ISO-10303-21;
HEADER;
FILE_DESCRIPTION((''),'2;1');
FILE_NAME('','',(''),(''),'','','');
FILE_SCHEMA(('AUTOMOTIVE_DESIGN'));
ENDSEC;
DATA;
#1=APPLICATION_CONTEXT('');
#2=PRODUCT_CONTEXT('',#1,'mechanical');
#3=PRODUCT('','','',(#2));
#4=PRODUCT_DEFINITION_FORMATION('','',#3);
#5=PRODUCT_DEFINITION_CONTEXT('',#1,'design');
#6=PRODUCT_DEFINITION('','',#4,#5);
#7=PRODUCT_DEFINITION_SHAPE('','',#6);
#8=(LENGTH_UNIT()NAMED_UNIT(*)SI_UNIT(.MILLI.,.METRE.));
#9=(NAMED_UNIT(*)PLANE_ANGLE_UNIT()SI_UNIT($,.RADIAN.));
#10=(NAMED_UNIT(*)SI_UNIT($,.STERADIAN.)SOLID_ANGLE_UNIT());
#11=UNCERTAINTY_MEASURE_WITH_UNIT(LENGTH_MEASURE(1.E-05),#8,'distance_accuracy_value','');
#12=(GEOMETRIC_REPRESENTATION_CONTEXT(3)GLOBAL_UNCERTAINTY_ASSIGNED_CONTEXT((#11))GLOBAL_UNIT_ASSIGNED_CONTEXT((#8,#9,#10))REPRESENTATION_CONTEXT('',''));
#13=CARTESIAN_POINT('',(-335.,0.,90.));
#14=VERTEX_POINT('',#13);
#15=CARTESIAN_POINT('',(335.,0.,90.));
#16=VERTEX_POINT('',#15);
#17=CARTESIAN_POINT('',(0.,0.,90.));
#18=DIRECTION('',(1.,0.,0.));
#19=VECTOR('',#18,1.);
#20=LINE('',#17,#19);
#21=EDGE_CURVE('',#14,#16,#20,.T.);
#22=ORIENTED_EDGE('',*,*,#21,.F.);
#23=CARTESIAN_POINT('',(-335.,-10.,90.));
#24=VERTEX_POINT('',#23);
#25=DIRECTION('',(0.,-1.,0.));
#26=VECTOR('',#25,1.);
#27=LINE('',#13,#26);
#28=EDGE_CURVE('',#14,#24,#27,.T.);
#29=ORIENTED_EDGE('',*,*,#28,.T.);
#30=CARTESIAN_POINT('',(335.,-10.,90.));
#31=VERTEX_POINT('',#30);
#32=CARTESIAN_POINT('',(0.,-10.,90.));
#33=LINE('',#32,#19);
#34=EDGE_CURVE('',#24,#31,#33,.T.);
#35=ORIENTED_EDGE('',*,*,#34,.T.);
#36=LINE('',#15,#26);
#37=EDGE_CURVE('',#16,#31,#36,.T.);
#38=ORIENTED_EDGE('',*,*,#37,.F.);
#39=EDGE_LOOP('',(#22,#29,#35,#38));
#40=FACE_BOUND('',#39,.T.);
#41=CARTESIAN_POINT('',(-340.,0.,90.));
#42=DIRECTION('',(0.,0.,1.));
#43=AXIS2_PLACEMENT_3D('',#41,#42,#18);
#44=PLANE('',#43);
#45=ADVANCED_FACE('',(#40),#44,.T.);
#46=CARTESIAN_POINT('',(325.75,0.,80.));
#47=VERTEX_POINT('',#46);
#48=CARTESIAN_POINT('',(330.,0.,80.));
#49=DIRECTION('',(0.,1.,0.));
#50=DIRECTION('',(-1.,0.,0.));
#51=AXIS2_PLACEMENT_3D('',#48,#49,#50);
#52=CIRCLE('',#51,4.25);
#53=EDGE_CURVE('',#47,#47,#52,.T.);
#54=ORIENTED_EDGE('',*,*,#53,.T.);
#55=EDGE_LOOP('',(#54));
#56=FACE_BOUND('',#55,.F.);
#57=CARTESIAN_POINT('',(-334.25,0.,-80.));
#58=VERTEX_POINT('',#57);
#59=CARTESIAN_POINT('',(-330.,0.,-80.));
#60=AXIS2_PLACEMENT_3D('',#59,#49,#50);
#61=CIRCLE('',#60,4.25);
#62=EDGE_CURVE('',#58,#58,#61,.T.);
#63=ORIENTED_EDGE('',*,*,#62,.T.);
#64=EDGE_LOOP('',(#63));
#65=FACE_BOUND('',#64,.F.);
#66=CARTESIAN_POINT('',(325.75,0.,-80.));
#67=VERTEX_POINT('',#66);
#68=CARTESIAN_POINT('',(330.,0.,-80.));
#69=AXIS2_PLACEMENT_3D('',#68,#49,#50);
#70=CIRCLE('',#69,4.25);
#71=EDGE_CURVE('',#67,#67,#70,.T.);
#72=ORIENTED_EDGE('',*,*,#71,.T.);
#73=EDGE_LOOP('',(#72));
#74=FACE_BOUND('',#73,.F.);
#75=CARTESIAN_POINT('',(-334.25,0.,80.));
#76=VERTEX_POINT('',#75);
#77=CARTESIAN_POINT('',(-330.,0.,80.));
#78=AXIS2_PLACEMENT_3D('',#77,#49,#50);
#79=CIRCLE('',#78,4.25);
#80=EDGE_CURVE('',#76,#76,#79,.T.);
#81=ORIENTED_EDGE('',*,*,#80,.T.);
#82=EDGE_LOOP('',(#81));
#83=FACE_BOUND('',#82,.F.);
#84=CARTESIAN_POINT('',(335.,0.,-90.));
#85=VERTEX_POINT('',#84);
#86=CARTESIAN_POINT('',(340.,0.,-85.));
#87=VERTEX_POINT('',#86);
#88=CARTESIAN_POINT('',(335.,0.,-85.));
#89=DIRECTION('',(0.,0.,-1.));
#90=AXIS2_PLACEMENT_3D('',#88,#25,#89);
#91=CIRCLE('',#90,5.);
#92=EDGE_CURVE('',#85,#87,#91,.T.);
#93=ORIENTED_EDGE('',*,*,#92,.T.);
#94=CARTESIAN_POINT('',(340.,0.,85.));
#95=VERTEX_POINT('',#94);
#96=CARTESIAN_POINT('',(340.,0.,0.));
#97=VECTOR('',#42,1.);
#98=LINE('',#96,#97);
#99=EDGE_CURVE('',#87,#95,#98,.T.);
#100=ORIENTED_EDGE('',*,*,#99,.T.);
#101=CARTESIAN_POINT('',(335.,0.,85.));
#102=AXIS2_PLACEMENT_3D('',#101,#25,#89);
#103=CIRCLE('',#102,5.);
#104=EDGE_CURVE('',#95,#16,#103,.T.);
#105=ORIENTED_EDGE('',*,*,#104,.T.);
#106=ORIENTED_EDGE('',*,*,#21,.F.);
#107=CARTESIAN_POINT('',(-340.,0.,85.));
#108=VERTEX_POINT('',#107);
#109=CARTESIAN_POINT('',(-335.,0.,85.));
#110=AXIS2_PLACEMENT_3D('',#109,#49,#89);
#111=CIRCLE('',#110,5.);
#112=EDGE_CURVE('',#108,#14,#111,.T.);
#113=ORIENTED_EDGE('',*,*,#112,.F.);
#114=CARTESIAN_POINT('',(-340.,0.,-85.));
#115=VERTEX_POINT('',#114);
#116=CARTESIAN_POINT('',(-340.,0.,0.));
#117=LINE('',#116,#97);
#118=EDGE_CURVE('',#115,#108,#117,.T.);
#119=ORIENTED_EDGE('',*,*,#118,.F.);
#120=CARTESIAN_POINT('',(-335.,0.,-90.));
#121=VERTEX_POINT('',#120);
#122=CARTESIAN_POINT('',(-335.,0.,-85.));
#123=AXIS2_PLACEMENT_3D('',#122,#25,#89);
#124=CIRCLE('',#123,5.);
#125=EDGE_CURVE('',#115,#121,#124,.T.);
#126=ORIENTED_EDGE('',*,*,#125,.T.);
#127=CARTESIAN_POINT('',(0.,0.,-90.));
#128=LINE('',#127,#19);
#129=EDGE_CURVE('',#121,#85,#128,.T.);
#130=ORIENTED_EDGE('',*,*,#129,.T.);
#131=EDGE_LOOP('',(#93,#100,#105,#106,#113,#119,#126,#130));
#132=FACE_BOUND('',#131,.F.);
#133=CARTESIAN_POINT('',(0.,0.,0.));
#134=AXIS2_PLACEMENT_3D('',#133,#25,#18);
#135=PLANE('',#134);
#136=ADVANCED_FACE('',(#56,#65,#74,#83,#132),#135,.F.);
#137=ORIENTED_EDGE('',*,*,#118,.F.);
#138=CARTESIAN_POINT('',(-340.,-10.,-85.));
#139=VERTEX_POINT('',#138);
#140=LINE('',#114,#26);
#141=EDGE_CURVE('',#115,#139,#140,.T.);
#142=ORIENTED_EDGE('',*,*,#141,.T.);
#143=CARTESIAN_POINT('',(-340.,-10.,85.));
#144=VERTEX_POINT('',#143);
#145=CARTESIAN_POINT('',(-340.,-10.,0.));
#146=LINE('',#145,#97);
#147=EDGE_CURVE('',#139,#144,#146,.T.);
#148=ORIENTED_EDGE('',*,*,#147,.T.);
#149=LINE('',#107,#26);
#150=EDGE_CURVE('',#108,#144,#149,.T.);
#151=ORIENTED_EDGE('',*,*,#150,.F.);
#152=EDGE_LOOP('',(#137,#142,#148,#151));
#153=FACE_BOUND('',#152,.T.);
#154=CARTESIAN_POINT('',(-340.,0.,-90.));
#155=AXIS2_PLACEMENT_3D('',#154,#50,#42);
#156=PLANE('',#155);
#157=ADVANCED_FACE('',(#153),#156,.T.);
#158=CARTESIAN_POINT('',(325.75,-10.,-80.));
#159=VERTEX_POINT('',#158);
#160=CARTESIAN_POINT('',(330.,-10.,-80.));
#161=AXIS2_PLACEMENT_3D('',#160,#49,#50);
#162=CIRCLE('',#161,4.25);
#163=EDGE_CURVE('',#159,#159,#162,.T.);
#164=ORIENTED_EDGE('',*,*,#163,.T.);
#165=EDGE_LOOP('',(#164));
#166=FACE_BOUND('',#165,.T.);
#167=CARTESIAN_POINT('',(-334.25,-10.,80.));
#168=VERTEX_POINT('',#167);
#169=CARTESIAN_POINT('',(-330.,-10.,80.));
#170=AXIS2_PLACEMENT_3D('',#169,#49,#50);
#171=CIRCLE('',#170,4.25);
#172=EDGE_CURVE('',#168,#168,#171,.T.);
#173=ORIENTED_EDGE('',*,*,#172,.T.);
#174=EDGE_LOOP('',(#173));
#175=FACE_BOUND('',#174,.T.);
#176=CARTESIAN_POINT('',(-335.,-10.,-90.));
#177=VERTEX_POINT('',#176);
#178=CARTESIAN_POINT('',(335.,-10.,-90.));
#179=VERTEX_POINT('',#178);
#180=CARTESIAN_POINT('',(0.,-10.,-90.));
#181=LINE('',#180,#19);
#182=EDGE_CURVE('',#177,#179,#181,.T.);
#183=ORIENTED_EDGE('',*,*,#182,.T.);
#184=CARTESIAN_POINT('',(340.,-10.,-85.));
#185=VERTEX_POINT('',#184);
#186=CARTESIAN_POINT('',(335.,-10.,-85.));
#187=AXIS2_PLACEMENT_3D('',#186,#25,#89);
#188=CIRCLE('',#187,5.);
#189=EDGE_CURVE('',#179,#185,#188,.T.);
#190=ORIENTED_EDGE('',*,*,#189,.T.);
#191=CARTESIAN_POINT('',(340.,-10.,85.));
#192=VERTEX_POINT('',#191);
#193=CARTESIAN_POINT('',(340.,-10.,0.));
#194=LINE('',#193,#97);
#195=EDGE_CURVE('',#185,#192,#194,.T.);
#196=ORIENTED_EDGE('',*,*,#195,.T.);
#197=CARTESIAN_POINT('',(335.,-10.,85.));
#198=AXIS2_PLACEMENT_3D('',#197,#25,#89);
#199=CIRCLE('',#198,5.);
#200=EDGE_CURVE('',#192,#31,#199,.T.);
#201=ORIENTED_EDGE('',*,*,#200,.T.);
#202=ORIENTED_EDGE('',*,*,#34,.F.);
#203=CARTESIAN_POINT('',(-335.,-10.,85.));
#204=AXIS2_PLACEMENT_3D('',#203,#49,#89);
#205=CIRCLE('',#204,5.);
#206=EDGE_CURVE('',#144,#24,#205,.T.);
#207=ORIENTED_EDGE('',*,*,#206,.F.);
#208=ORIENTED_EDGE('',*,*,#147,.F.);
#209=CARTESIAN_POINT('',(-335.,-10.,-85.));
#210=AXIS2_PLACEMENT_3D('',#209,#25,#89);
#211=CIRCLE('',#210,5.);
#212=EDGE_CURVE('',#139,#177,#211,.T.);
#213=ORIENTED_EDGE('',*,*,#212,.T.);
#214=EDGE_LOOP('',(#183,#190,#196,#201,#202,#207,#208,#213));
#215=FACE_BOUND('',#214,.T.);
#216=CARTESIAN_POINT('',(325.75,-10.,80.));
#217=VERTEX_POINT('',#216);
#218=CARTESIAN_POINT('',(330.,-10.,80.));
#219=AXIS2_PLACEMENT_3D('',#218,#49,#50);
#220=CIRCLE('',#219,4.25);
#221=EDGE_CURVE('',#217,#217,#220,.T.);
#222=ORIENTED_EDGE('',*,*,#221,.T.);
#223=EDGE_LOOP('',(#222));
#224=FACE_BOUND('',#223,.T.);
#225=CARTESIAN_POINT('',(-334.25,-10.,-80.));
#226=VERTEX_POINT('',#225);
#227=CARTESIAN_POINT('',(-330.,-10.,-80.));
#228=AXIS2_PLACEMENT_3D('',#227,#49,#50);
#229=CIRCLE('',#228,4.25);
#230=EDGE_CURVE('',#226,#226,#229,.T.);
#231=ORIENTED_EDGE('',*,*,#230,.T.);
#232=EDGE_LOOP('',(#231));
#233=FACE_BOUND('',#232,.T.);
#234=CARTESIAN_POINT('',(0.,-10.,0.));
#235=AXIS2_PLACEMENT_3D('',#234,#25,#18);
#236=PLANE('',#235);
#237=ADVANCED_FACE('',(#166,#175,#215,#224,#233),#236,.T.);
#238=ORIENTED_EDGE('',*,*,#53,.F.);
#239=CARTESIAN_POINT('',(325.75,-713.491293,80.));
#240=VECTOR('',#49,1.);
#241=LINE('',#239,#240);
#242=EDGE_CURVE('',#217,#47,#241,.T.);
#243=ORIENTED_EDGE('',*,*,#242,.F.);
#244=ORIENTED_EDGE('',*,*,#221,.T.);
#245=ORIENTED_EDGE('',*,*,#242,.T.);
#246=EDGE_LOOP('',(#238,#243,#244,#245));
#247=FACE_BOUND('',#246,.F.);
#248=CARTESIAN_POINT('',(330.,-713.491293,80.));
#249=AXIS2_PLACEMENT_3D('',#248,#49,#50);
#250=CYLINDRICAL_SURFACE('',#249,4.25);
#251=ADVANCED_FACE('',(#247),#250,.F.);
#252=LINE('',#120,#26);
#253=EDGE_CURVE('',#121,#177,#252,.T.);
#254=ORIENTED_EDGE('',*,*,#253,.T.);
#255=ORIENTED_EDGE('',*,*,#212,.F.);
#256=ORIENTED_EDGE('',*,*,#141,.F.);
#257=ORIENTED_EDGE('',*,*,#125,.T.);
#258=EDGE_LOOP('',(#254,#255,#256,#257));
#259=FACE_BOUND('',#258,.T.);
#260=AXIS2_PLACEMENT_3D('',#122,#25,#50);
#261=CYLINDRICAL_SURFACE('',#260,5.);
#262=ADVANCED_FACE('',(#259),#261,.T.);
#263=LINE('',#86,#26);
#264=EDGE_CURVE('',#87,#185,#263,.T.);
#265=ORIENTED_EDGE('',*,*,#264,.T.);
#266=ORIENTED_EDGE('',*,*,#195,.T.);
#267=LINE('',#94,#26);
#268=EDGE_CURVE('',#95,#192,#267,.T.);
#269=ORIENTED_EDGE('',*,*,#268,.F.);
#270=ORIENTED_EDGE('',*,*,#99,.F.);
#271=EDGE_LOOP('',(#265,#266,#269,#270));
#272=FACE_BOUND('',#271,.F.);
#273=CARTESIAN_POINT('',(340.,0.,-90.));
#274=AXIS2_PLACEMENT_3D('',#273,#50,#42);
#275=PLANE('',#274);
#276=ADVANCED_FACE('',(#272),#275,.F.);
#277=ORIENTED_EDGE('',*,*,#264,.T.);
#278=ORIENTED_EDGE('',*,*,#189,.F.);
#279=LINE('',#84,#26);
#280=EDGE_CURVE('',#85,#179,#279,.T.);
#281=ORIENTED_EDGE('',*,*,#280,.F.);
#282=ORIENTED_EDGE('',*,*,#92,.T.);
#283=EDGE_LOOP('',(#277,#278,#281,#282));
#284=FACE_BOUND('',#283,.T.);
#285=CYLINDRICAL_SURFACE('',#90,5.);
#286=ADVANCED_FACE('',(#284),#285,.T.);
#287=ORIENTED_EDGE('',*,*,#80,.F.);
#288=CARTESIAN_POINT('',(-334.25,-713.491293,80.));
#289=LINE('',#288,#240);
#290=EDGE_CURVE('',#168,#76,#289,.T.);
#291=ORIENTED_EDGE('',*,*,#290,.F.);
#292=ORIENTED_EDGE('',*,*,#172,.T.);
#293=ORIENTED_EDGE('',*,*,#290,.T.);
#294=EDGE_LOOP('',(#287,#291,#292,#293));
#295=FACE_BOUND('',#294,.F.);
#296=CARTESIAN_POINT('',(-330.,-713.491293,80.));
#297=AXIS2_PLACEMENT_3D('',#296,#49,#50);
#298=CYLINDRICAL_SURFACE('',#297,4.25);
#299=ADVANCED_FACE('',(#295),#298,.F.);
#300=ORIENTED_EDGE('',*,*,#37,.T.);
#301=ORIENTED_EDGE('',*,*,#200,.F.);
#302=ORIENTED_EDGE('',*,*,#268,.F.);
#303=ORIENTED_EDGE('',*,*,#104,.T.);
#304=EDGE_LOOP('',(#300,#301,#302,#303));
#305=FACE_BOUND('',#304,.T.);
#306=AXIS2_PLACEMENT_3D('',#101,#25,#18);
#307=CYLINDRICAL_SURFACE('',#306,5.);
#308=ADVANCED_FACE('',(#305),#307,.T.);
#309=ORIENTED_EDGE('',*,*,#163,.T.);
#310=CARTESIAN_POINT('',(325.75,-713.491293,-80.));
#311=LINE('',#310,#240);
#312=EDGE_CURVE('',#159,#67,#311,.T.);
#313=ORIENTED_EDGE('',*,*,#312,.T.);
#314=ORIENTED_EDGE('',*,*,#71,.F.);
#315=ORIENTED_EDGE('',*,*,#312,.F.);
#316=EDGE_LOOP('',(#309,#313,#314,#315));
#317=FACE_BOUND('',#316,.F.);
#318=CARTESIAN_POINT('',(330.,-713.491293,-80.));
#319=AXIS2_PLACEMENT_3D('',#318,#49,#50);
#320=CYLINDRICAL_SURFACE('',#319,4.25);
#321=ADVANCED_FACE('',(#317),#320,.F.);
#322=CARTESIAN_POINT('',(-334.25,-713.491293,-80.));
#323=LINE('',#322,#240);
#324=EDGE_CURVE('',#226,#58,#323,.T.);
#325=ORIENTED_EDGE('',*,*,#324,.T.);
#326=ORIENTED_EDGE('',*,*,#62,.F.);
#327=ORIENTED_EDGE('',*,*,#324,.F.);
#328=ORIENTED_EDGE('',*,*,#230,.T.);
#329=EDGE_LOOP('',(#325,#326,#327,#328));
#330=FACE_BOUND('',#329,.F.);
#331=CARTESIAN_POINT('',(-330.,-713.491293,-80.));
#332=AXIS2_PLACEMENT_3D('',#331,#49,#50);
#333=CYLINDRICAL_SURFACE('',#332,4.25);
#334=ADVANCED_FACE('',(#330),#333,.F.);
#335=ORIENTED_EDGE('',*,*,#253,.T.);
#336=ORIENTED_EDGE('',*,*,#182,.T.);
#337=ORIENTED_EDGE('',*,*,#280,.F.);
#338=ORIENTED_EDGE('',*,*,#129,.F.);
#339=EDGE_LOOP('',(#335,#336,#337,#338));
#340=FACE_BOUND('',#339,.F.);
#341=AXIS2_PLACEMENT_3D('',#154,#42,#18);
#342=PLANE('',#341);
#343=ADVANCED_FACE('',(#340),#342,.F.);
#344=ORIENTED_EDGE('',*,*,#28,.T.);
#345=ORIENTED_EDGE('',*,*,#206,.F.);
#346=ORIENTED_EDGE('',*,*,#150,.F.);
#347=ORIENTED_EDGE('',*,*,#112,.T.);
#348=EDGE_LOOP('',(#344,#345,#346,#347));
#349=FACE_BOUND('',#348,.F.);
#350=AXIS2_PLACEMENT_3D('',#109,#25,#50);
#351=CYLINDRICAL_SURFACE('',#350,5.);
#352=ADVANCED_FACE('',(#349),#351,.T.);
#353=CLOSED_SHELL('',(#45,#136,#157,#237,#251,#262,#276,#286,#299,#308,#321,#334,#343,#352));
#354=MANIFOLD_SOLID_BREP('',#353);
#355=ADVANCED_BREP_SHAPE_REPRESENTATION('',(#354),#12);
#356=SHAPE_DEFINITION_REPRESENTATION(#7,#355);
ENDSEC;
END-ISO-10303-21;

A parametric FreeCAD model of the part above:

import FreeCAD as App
import Part
import Sketcher

V = App.Vector
Q = App.Units.Quantity


def edges_at(feature, points):
    """Names of the edges that pass closest to the given points."""
    edges = feature.Shape.Edges
    near = lambda p: min(range(len(edges)), key=lambda i: edges[i].distToShape(Part.Vertex(*p))[0])
    return sorted({f"Edge{near(p) + 1}" for p in points})


def add_polygon(sketch, points):
    """Adds a closed chain of lines whose ends are joined by coincident constraints."""
    first, n = sketch.GeometryCount, len(points)
    for a, b in zip(points, points[1:] + points[:1]):
        sketch.addGeometry(Part.LineSegment(App.Vector(*a, 0), App.Vector(*b, 0)), False)
    for i in range(n):
        sketch.addConstraint(Sketcher.Constraint("Coincident", first + i, 2, first + (i + 1) % n, 1))

doc = App.newDocument("Part")
body = doc.addObject("PartDesign::Body", "Body")

# Sketch on XZ plane
sketch1 = doc.addObject("Sketcher::SketchObject", "Sketch")
body.addObject(sketch1)
sketch1.AttachmentSupport = (doc.XZ_Plane, [""])
sketch1.MapMode = "FlatFace"
add_polygon(sketch1, [(-340, 90), (-340, -90), (340, -90), (340, 90)])  # lines 0-3
sketch1.addConstraint(Sketcher.Constraint("Vertical", 0))
sketch1.addConstraint(Sketcher.Constraint("Horizontal", 1))
sketch1.addConstraint(Sketcher.Constraint("Vertical", 2))
sketch1.addConstraint(Sketcher.Constraint("Horizontal", 3))
sketch1.addConstraint(Sketcher.Constraint("Symmetric", 0, 2, 2, 2, -1, 1))
sketch1.addConstraint(Sketcher.Constraint("DistanceX", 1, 1, 1, 2, Q("680 mm")))
sketch1.addConstraint(Sketcher.Constraint("DistanceY", 0, 2, 0, 1, Q("180 mm")))
pad1 = doc.addObject("PartDesign::Pad", "Pad")
body.addObject(pad1)
pad1.Profile = sketch1
pad1.Length = 10
doc.recompute()

fillet = doc.addObject("PartDesign::Fillet", "Fillet")
body.addObject(fillet)
fillet.Base = (pad1, edges_at(pad1, [
    (-340, -5, 90),
    (340, -5, 90),
    (340, -5, -90),
    (-340, -5, -90),
]))
fillet.Radius = 5

# Sketch on XZ plane
sketch2 = doc.addObject("Sketcher::SketchObject", "Sketch001")
body.addObject(sketch2)
sketch2.AttachmentSupport = (doc.XZ_Plane, [""])
sketch2.MapMode = "FlatFace"
sketch2.AttachmentOffset = App.Placement(V(0, 0, 10), App.Rotation())
sketch2.addGeometry(Part.Circle(V(-330, 80, 0), V(0, 0, 1), 4.25), False)
sketch2.addGeometry(Part.Circle(V(-330, -80, 0), V(0, 0, 1), 4.25), False)
sketch2.addGeometry(Part.Circle(V(330, -80, 0), V(0, 0, 1), 4.25), False)
sketch2.addGeometry(Part.Circle(V(330, 80, 0), V(0, 0, 1), 4.25), False)
sketch2.addConstraint(Sketcher.Constraint("Equal", 0, 1))
sketch2.addConstraint(Sketcher.Constraint("Equal", 1, 2))
sketch2.addConstraint(Sketcher.Constraint("Equal", 2, 3))
sketch2.addConstraint(Sketcher.Constraint("Symmetric", 0, 3, 2, 3, -1, 1))
sketch2.addConstraint(Sketcher.Constraint("Symmetric", 1, 3, 3, 3, -1, 1))
sketch2.addConstraint(Sketcher.Constraint("Symmetric", 1, 3, 2, 3, -2))
sketch2.addConstraint(Sketcher.Constraint("Diameter", 0, Q("8.5 mm")))
sketch2.addConstraint(Sketcher.Constraint("DistanceX", 0, 3, -1, 1, Q("330 mm")))
sketch2.addConstraint(Sketcher.Constraint("DistanceY", -1, 1, 0, 3, Q("80 mm")))
doc.recompute()
hole = doc.addObject("PartDesign::Hole", "Hole")
body.addObject(hole)
hole.Profile = sketch2
hole.ThreadType = "None"
hole.Diameter = 8.5
hole.DepthType = "ThroughAll"

doc.recompute()
